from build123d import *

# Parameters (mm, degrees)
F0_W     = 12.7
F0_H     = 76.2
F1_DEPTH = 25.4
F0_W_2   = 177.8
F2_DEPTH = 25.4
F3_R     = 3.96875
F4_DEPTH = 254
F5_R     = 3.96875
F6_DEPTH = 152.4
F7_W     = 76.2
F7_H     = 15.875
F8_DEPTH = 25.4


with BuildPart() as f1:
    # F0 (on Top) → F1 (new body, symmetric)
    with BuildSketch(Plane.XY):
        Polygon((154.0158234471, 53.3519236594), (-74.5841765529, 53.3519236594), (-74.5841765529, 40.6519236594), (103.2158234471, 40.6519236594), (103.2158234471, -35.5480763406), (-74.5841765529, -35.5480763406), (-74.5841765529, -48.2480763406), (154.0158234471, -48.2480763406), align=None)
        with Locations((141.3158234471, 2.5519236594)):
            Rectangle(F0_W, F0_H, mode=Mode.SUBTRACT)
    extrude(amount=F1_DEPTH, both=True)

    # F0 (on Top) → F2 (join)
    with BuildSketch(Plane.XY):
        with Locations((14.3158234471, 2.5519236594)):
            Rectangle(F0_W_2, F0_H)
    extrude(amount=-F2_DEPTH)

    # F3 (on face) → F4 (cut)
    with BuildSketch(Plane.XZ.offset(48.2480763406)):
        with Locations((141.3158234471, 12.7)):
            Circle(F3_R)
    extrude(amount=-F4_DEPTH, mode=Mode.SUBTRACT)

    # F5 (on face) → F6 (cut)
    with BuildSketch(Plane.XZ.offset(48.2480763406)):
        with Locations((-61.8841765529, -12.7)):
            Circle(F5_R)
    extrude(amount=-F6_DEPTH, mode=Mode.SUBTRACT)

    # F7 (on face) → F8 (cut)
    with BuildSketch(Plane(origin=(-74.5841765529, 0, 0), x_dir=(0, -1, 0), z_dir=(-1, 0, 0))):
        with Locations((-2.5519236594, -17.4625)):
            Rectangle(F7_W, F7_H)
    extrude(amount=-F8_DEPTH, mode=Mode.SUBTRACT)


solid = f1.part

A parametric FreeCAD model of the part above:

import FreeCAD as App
import Part
import Sketcher
Q = App.Units.Quantity

doc = App.newDocument("Part")
body = doc.addObject("PartDesign::Body", "Body")

# Sketch on XY plane
sketch1 = doc.addObject("Sketcher::SketchObject", "Sketch")
body.addObject(sketch1)
sketch1.AttachmentSupport = (doc.XY_Plane, [""])
sketch1.MapMode = "FlatFace"
sketch1.addGeometry([
    Part.LineSegment(App.Vector(154, 53, 0), App.Vector(-75, 53, 0)),  # 0
    Part.LineSegment(App.Vector(-75, 53, 0), App.Vector(-75, 41, 0)),  # 1
    Part.LineSegment(App.Vector(-75, 41, 0), App.Vector(103, 41, 0)),  # 2
    Part.LineSegment(App.Vector(103, 41, 0), App.Vector(103, -36, 0)),  # 3
    Part.LineSegment(App.Vector(103, -36, 0), App.Vector(-75, -36, 0)),  # 4
    Part.LineSegment(App.Vector(-75, -36, 0), App.Vector(-75, -48, 0)),  # 5
    Part.LineSegment(App.Vector(-75, -48, 0), App.Vector(154, -48, 0)),  # 6
    Part.LineSegment(App.Vector(154, -48, 0), App.Vector(154, 53, 0)),  # 7
    Part.LineSegment(App.Vector(148, -36, 0), App.Vector(135, -36, 0)),  # 8
    Part.LineSegment(App.Vector(135, -36, 0), App.Vector(135, 41, 0)),  # 9
    Part.LineSegment(App.Vector(135, 41, 0), App.Vector(148, 41, 0)),  # 10
    Part.LineSegment(App.Vector(148, 41, 0), App.Vector(148, -36, 0)),  # 11
], False)
sketch1.addConstraint([
    Sketcher.Constraint("Coincident", 0, 2, 1, 1),
    Sketcher.Constraint("Coincident", 1, 2, 2, 1),
    Sketcher.Constraint("Coincident", 2, 2, 3, 1),
    Sketcher.Constraint("Coincident", 3, 2, 4, 1),
    Sketcher.Constraint("Coincident", 4, 2, 5, 1),
    Sketcher.Constraint("Coincident", 5, 2, 6, 1),
    Sketcher.Constraint("Coincident", 6, 2, 7, 1),
    Sketcher.Constraint("Coincident", 7, 2, 0, 1),
    Sketcher.Constraint("Coincident", 8, 2, 9, 1),
    Sketcher.Constraint("Coincident", 9, 2, 10, 1),
    Sketcher.Constraint("Coincident", 10, 2, 11, 1),
    Sketcher.Constraint("Coincident", 11, 2, 8, 1),
    Sketcher.Constraint("Horizontal", 0),
    Sketcher.Constraint("Vertical", 1),
    Sketcher.Constraint("Horizontal", 2),
    Sketcher.Constraint("Vertical", 3),
    Sketcher.Constraint("Horizontal", 4),
    Sketcher.Constraint("Vertical", 5),
    Sketcher.Constraint("Horizontal", 6),
    Sketcher.Constraint("Vertical", 7),
    Sketcher.Constraint("Horizontal", 8),
    Sketcher.Constraint("Vertical", 9),
    Sketcher.Constraint("Horizontal", 10),
    Sketcher.Constraint("Vertical", 11),
    Sketcher.Constraint("Horizontal", 4, 2, 8, 2),
    Sketcher.Constraint("Horizontal", 2, 2, 9, 2),
    Sketcher.Constraint("Vertical", 1, 2, 4, 2),
    Sketcher.Constraint("Equal", 10, 1),
    Sketcher.Constraint("Equal", 1, 5),
    Sketcher.Constraint("DistanceX", 0, 2, 0, 1, Q("9 in")),
    Sketcher.Constraint("DistanceX", 2, 1, 2, 2, Q("7 in")),
    Sketcher.Constraint("DistanceY", 3, 2, 3, 1, Q("3 in")),
    Sketcher.Constraint("DistanceY", 7, 1, 7, 2, Q("4 in")),
    Sketcher.Constraint("DistanceX", 8, 2, 6, 2, Q("0.75 in")),
    Sketcher.Constraint("DistanceX", 0, 2, -1, 1, Q("74.584177 mm")),
    Sketcher.Constraint("DistanceY", -1, 1, 0, 2, Q("53.351924 mm")),
])
pad1 = doc.addObject("PartDesign::Pad", "Pad")
body.addObject(pad1)
pad1.Profile = sketch1
pad1.Length = Q("2 in")
pad1.Midplane = True

# Sketch on XY plane
sketch2 = doc.addObject("Sketcher::SketchObject", "Sketch001")
body.addObject(sketch2)
sketch2.AttachmentSupport = (doc.XY_Plane, [""])
sketch2.MapMode = "FlatFace"
sketch2.addGeometry([
    Part.LineSegment(App.Vector(-75, 41, 0), App.Vector(-75, -36, 0)),
    Part.LineSegment(App.Vector(-75, -36, 0), App.Vector(103, -36, 0)),
    Part.LineSegment(App.Vector(103, -36, 0), App.Vector(103, 41, 0)),
    Part.LineSegment(App.Vector(103, 41, 0), App.Vector(-75, 41, 0)),
], False)
sketch2.addConstraint([
    Sketcher.Constraint("Coincident", 0, 2, 1, 1),
    Sketcher.Constraint("Coincident", 1, 2, 2, 1),
    Sketcher.Constraint("Coincident", 2, 2, 3, 1),
    Sketcher.Constraint("Coincident", 3, 2, 0, 1),
    Sketcher.Constraint("Vertical", 0),
    Sketcher.Constraint("Horizontal", 1),
    Sketcher.Constraint("Vertical", 2),
    Sketcher.Constraint("Horizontal", 3),
    Sketcher.Constraint("DistanceX", 1, 1, 1, 2, Q("7 in")),
    Sketcher.Constraint("DistanceY", 0, 2, 0, 1, Q("3 in")),
    Sketcher.Constraint("DistanceX", 0, 2, -1, 1, Q("74.584177 mm")),
    Sketcher.Constraint("DistanceY", 0, 2, -1, 1, Q("35.548076 mm")),
])
pad2 = doc.addObject("PartDesign::Pad", "Pad001")
body.addObject(pad2)
pad2.Profile = sketch2
pad2.Length = Q("1 in")
pad2.Reversed = True

# Sketch on XZ plane
sketch3 = doc.addObject("Sketcher::SketchObject", "Sketch002")
body.addObject(sketch3)
sketch3.AttachmentSupport = (doc.XZ_Plane, [""])
sketch3.MapMode = "FlatFace"
sketch3.AttachmentOffset = App.Placement(App.Vector(0, 0, 48.248076), App.Rotation())
sketch3.addGeometry(Part.Circle(App.Vector(141.3, 12.7, 0), App.Vector(0, 0, 1), 4), False)
sketch3.addConstraint([
    Sketcher.Constraint("Diameter", 0, Q("0.3125 in")),
    Sketcher.Constraint("DistanceY", -1, 1, 0, 3, Q("0.5 in")),
    Sketcher.Constraint("DistanceX", -1, 1, 0, 3, Q("141.315823 mm")),
])
pocket1 = doc.addObject("PartDesign::Pocket", "Pocket")
body.addObject(pocket1)
pocket1.Profile = sketch3
pocket1.Length = Q("10 in")

# Sketch on XZ plane
sketch4 = doc.addObject("Sketcher::SketchObject", "Sketch003")
body.addObject(sketch4)
sketch4.AttachmentSupport = (doc.XZ_Plane, [""])
sketch4.MapMode = "FlatFace"
sketch4.AttachmentOffset = App.Placement(App.Vector(0, 0, 48.248076), App.Rotation())
sketch4.addGeometry(Part.Circle(App.Vector(-61.9, -12.7, 0), App.Vector(0, 0, 1), 4), False)
sketch4.addConstraint([
    Sketcher.Constraint("Diameter", 0, Q("0.3125 in")),
    Sketcher.Constraint("DistanceY", 0, 3, -1, 1, Q("0.5 in")),
    Sketcher.Constraint("DistanceX", 0, 3, -1, 1, Q("61.884177 mm")),
])
pocket2 = doc.addObject("PartDesign::Pocket", "Pocket001")
body.addObject(pocket2)
pocket2.Profile = sketch4
pocket2.Length = Q("6 in")

# Sketch on YZ plane
sketch5 = doc.addObject("Sketcher::SketchObject", "Sketch004")
body.addObject(sketch5)
sketch5.AttachmentSupport = (doc.YZ_Plane, [""])
sketch5.MapMode = "FlatFace"
sketch5.AttachmentOffset = App.Placement(App.Vector(0, 0, -74.584177), App.Rotation())
sketch5.addGeometry([
    Part.LineSegment(App.Vector(41, -10, 0), App.Vector(41, -25, 0)),
    Part.LineSegment(App.Vector(41, -25, 0), App.Vector(-36, -25, 0)),
    Part.LineSegment(App.Vector(-36, -25, 0), App.Vector(-36, -10, 0)),
    Part.LineSegment(App.Vector(-36, -10, 0), App.Vector(41, -10, 0)),
], False)
sketch5.addConstraint([
    Sketcher.Constraint("Coincident", 0, 2, 1, 1),
    Sketcher.Constraint("Coincident", 1, 2, 2, 1),
    Sketcher.Constraint("Coincident", 2, 2, 3, 1),
    Sketcher.Constraint("Coincident", 3, 2, 0, 1),
    Sketcher.Constraint("Vertical", 0),
    Sketcher.Constraint("Horizontal", 1),
    Sketcher.Constraint("Vertical", 2),
    Sketcher.Constraint("Horizontal", 3),
    Sketcher.Constraint("DistanceX", 1, 2, 1, 1, Q("3 in")),
    Sketcher.Constraint("DistanceY", 0, 2, -1, 1, Q("1 in")),
    Sketcher.Constraint("DistanceY", 0, 2, 0, 1, Q("0.625 in")),
    Sketcher.Constraint("DistanceX", -1, 1, 0, 2, Q("40.651924 mm")),
])
pocket3 = doc.addObject("PartDesign::Pocket", "Pocket002")
body.addObject(pocket3)
pocket3.Profile = sketch5
pocket3.Length = Q("1 in")
pocket3.Reversed = True

doc.recompute()
